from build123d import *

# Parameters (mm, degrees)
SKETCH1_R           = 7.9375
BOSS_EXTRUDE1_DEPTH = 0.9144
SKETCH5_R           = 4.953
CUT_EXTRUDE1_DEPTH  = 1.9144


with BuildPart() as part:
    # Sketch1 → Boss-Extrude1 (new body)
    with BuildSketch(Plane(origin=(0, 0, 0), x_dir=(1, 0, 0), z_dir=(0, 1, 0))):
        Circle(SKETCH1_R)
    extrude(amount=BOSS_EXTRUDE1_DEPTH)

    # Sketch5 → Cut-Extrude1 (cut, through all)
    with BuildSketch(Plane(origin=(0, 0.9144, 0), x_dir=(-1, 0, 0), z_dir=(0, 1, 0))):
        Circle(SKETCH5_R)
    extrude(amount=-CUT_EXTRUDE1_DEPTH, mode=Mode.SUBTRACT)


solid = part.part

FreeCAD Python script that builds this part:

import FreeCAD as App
import Part
import Sketcher

V = App.Vector
Q = App.Units.Quantity

doc = App.newDocument("Part")
body = doc.addObject("PartDesign::Body", "Body")

sketch1 = body.newObject("Sketcher::SketchObject", "Sketch")
sketch1.AttachmentSupport = (doc.getObject("XZ_Plane"), [""])
sketch1.MapMode = "FlatFace"
sketch1.addGeometry(Part.Circle(V(0, 0, 0), V(0, 0, 1), 8), False)
sketch1.addConstraint([
    Sketcher.Constraint("Coincident", 0, 3, -1, 1),
    Sketcher.Constraint("Diameter", 0, Q("0.625 in")),
])
pad1 = body.newObject("PartDesign::Pad", "Pad")
pad1.Profile = sketch1
pad1.Length = Q("0.036 in")
pad1.Reversed = True

sketch2 = body.newObject("Sketcher::SketchObject", "Sketch001")
sketch2.AttachmentSupport = (doc.getObject("XZ_Plane"), [""])
sketch2.MapMode = "FlatFace"
sketch2.AttachmentOffset = App.Placement(V(0, 0, -0.036 * 25.4), App.Rotation())
sketch2.addGeometry(Part.Circle(V(0, 0, 0), V(0, 0, 1), 5), False)
sketch2.addConstraint([
    Sketcher.Constraint("Coincident", 0, 3, -1, 1),
    Sketcher.Constraint("Diameter", 0, Q("0.39 in")),
])
pocket1 = body.newObject("PartDesign::Pocket", "Pocket")
pocket1.Profile = sketch2
pocket1.Type = "ThroughAll"
pocket1.Reversed = True

doc.recompute()
